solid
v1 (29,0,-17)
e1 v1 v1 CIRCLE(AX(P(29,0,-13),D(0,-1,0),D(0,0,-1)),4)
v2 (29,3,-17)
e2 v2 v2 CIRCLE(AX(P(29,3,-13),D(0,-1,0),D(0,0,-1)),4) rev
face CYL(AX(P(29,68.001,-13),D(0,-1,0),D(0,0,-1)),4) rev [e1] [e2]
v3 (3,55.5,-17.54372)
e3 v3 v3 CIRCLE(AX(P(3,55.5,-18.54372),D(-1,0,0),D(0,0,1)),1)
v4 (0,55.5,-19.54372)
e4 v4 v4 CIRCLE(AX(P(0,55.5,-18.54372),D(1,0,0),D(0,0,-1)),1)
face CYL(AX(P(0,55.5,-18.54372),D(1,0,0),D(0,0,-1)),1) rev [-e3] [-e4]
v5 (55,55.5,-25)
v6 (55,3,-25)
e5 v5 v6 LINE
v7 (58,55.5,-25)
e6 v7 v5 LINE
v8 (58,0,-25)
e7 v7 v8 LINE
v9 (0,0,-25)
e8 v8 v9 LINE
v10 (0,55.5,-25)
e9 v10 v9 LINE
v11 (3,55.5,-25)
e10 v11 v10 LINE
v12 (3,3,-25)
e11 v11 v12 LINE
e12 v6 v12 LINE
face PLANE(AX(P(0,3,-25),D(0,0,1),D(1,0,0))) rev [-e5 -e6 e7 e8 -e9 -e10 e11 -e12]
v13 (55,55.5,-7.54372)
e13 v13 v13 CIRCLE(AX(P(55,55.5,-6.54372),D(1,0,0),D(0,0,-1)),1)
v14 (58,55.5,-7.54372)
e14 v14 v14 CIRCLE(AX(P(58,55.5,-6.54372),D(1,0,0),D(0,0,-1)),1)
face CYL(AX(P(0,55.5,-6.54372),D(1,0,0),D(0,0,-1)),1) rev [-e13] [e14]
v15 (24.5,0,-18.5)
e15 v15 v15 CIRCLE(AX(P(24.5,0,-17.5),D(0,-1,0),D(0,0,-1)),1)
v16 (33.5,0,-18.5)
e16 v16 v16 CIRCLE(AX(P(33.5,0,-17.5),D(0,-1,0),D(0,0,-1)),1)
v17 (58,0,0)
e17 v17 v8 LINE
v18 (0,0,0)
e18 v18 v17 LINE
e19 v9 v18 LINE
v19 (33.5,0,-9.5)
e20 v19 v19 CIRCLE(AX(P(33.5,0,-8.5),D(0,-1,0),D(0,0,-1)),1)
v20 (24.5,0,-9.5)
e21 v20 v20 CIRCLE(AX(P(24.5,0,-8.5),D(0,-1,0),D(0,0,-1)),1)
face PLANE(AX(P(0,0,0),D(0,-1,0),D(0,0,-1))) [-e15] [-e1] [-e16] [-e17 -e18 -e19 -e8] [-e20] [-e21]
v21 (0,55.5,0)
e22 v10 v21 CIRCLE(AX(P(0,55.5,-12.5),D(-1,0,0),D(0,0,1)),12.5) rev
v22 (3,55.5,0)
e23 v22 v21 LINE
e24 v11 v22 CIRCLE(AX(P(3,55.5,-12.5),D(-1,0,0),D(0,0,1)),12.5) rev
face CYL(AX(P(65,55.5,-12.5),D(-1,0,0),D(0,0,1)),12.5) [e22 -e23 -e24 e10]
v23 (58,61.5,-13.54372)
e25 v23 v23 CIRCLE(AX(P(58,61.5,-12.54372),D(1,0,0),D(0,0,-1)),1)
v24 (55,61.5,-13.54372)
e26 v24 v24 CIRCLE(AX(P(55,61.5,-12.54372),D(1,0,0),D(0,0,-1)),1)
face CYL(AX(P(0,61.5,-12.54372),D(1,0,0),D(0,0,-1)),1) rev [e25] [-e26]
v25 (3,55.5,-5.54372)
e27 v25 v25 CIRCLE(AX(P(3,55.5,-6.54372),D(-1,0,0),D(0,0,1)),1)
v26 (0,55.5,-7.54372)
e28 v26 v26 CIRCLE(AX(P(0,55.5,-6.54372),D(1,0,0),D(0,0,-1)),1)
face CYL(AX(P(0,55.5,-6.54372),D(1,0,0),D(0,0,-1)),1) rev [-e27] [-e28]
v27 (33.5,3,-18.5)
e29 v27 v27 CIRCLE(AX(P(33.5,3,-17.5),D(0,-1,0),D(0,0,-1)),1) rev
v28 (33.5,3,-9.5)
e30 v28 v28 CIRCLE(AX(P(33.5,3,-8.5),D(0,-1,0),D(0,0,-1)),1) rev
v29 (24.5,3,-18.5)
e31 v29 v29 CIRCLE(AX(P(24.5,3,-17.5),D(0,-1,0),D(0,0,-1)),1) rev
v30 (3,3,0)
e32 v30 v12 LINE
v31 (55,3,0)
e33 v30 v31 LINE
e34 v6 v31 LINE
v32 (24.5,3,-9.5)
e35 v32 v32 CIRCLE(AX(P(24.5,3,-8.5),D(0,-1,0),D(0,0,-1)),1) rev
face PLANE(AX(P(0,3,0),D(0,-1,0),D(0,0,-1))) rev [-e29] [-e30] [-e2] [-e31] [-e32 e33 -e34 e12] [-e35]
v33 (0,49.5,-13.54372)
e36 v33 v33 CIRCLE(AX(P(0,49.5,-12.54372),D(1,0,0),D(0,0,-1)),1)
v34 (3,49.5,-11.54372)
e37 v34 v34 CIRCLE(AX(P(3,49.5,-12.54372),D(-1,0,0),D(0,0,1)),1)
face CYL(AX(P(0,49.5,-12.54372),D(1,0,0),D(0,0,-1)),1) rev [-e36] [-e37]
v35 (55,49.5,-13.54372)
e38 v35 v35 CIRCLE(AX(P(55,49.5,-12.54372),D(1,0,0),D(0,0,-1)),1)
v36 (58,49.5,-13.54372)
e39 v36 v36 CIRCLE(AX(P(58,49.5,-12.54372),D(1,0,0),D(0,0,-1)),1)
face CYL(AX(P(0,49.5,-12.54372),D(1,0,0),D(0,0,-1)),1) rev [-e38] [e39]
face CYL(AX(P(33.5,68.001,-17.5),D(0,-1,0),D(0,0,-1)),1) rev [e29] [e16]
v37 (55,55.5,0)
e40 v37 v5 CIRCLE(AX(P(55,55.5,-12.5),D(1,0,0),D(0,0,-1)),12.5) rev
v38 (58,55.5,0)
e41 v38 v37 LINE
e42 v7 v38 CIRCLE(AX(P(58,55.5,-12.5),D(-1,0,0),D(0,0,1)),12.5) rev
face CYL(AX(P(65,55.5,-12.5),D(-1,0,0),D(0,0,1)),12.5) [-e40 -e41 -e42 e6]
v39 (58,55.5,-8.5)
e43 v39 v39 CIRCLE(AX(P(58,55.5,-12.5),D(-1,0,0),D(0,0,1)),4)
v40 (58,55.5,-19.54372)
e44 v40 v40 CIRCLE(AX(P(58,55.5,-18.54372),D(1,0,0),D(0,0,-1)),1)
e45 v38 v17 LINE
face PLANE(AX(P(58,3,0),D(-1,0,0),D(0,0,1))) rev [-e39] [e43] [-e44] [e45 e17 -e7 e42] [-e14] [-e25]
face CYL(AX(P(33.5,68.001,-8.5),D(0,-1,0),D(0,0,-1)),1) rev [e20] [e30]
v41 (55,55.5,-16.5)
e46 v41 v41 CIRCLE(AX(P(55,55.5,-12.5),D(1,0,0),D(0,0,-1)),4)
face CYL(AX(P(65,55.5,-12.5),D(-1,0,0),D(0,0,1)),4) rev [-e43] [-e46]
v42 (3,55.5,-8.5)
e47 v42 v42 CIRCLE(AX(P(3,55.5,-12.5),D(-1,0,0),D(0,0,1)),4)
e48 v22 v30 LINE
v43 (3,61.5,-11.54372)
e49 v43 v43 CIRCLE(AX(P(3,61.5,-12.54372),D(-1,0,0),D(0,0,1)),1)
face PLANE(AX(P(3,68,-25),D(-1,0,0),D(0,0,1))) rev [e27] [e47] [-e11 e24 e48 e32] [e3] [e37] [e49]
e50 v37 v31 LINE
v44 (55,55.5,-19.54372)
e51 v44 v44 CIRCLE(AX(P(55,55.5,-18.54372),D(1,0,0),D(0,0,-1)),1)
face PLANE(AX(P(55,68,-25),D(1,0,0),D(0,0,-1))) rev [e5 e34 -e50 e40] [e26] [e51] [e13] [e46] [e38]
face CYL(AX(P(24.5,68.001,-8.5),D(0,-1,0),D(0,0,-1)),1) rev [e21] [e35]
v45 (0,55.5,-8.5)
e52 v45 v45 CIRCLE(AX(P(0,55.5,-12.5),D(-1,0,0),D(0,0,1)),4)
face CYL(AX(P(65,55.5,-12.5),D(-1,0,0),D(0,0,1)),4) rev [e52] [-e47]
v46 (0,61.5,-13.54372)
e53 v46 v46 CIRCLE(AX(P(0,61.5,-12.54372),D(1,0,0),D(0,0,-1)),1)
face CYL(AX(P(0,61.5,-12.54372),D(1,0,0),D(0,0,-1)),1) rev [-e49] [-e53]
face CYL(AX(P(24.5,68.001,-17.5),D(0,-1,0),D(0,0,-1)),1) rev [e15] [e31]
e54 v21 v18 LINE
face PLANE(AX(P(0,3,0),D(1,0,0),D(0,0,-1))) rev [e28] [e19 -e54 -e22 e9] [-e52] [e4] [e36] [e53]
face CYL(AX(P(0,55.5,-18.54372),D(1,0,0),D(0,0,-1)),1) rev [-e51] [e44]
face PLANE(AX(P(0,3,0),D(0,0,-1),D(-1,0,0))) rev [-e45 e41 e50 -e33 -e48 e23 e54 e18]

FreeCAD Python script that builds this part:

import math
import FreeCAD as App
import Part
import Sketcher

V = App.Vector
Q = App.Units.Quantity

doc = App.newDocument("Part")
body = doc.addObject("PartDesign::Body", "Body")

# Sketch on XZ plane
sketch1 = body.newObject("Sketcher::SketchObject", "Sketch")
sketch1.AttachmentSupport = (doc.getObject("XZ_Plane"), [""])
sketch1.MapMode = "FlatFace"
sketch1.addGeometry(Part.LineSegment(V(0, -25, 0), V(0, 0, 0)), False)
sketch1.addGeometry(Part.LineSegment(V(0, 0, 0), V(58, 0, 0)), False)
sketch1.addGeometry(Part.LineSegment(V(58, 0, 0), V(58, -25, 0)), False)
sketch1.addGeometry(Part.LineSegment(V(58, -25, 0), V(0, -25, 0)), False)
sketch1.addConstraint(Sketcher.Constraint("Coincident", 0, 2, 1, 1))
sketch1.addConstraint(Sketcher.Constraint("Coincident", 1, 2, 2, 1))
sketch1.addConstraint(Sketcher.Constraint("Coincident", 2, 2, 3, 1))
sketch1.addConstraint(Sketcher.Constraint("Coincident", 3, 2, 0, 1))
sketch1.addConstraint(Sketcher.Constraint("Vertical", 0))
sketch1.addConstraint(Sketcher.Constraint("Horizontal", 1))
sketch1.addConstraint(Sketcher.Constraint("Vertical", 2))
sketch1.addConstraint(Sketcher.Constraint("Horizontal", 3))
sketch1.addConstraint(Sketcher.Constraint("Coincident", 0, 2, -1, 1))
sketch1.addConstraint(Sketcher.Constraint("DistanceX", 1, 1, 1, 2, Q("58 mm")))
sketch1.addConstraint(Sketcher.Constraint("DistanceY", 0, 1, 0, 2, Q("25 mm")))
pad1 = body.newObject("PartDesign::Pad", "Pad")
pad1.Profile = sketch1
pad1.Length = 3
pad1.Reversed = True

# Sketch on XZ plane
sketch2 = body.newObject("Sketcher::SketchObject", "Sketch001")
sketch2.AttachmentSupport = (doc.getObject("XZ_Plane"), [""])
sketch2.MapMode = "FlatFace"
sketch2.AttachmentOffset = App.Placement(V(0, 0, -3), App.Rotation())
sketch2.addGeometry(Part.LineSegment(V(55, -25, 0), V(55, 0, 0)), False)
sketch2.addGeometry(Part.LineSegment(V(55, 0, 0), V(58, 0, 0)), False)
sketch2.addGeometry(Part.LineSegment(V(58, 0, 0), V(58, -25, 0)), False)
sketch2.addGeometry(Part.LineSegment(V(58, -25, 0), V(55, -25, 0)), False)
sketch2.addGeometry(Part.LineSegment(V(0, -25, 0), V(0, 0, 0)), False)
sketch2.addGeometry(Part.LineSegment(V(0, 0, 0), V(3, 0, 0)), False)
sketch2.addGeometry(Part.LineSegment(V(3, 0, 0), V(3, -25, 0)), False)
sketch2.addGeometry(Part.LineSegment(V(3, -25, 0), V(0, -25, 0)), False)
sketch2.addConstraint(Sketcher.Constraint("Coincident", 0, 2, 1, 1))
sketch2.addConstraint(Sketcher.Constraint("Coincident", 1, 2, 2, 1))
sketch2.addConstraint(Sketcher.Constraint("Coincident", 2, 2, 3, 1))
sketch2.addConstraint(Sketcher.Constraint("Coincident", 3, 2, 0, 1))
sketch2.addConstraint(Sketcher.Constraint("Coincident", 4, 2, 5, 1))
sketch2.addConstraint(Sketcher.Constraint("Coincident", 5, 2, 6, 1))
sketch2.addConstraint(Sketcher.Constraint("Coincident", 6, 2, 7, 1))
sketch2.addConstraint(Sketcher.Constraint("Coincident", 7, 2, 4, 1))
sketch2.addConstraint(Sketcher.Constraint("Vertical", 0))
sketch2.addConstraint(Sketcher.Constraint("Horizontal", 1))
sketch2.addConstraint(Sketcher.Constraint("Vertical", 2))
sketch2.addConstraint(Sketcher.Constraint("Horizontal", 3))
sketch2.addConstraint(Sketcher.Constraint("Vertical", 4))
sketch2.addConstraint(Sketcher.Constraint("Horizontal", 5))
sketch2.addConstraint(Sketcher.Constraint("Vertical", 6))
sketch2.addConstraint(Sketcher.Constraint("Horizontal", 7))
sketch2.addConstraint(Sketcher.Constraint("Coincident", 4, 2, -1, 1))
sketch2.addConstraint(Sketcher.Constraint("PointOnObject", 0, 2, -1))
sketch2.addConstraint(Sketcher.Constraint("Horizontal", 3, 2, 6, 2))
sketch2.addConstraint(Sketcher.Constraint("Equal", 3, 5))
sketch2.addConstraint(Sketcher.Constraint("DistanceX", 1, 1, 1, 2, Q("3 mm")))
sketch2.addConstraint(Sketcher.Constraint("DistanceY", 0, 1, 0, 2, Q("25 mm")))
sketch2.addConstraint(Sketcher.Constraint("DistanceX", -1, 1, 0, 2, Q("55 mm")))
pad2 = body.newObject("PartDesign::Pad", "Pad001")
pad2.Profile = sketch2
pad2.Length = 65
pad2.Reversed = True

# Sketch on YZ plane
sketch3 = body.newObject("Sketcher::SketchObject", "Sketch002")
sketch3.AttachmentSupport = (doc.getObject("YZ_Plane"), [""])
sketch3.MapMode = "FlatFace"
sketch3.addGeometry(Part.LineSegment(V(68, -25, 0), V(56, -25, 0)), False)
sketch3.addGeometry(Part.ArcOfCircle(Part.Circle(V(56, -13, 0), V(0, 0, 1), 12), math.radians(-90), math.radians(0)), False)
sketch3.addGeometry(Part.LineSegment(V(68, -12, 0), V(68, -25, 0)), False)
sketch3.addGeometry(Part.LineSegment(V(68, 0, 0), V(68, -12, 0)), False)
sketch3.addGeometry(Part.ArcOfCircle(Part.Circle(V(56, -12, 0), V(0, 0, 1), 12), math.radians(0), math.radians(90)), False)
sketch3.addGeometry(Part.LineSegment(V(56, 0, 0), V(68, 0, 0)), False)
sketch3.addConstraint(Sketcher.Constraint("Tangent", 0, 2, 1, 1))
sketch3.addConstraint(Sketcher.Constraint("Tangent", 1, 2, 2, 1))
sketch3.addConstraint(Sketcher.Constraint("Coincident", 2, 2, 0, 1))
sketch3.addConstraint(Sketcher.Constraint("Tangent", 3, 2, 4, 1))
sketch3.addConstraint(Sketcher.Constraint("Tangent", 4, 2, 5, 1))
sketch3.addConstraint(Sketcher.Constraint("Coincident", 5, 2, 3, 1))
sketch3.addConstraint(Sketcher.Constraint("Horizontal", 0))
sketch3.addConstraint(Sketcher.Constraint("Vertical", 2))
sketch3.addConstraint(Sketcher.Constraint("Vertical", 3))
sketch3.addConstraint(Sketcher.Constraint("Horizontal", 5))
sketch3.addConstraint(Sketcher.Constraint("Coincident", 4, 3, 1, 3))
sketch3.addConstraint(Sketcher.Constraint("Equal", 1, 4))
sketch3.addConstraint(Sketcher.Constraint("PointOnObject", 4, 2, -1))
sketch3.addConstraint(Sketcher.Constraint("Radius", 1, Q("12.5 mm")))
sketch3.addConstraint(Sketcher.Constraint("DistanceX", -1, 1, 1, 2, Q("68 mm")))
pocket1 = body.newObject("PartDesign::Pocket", "Pocket")
pocket1.Profile = sketch3
pocket1.Length = 65
pocket1.Reversed = True

# Sketch on YZ plane
sketch4 = body.newObject("Sketcher::SketchObject", "Sketch003")
sketch4.AttachmentSupport = (doc.getObject("YZ_Plane"), [""])
sketch4.MapMode = "FlatFace"
sketch4.addGeometry(Part.Circle(V(55.5, -12.5, 0), V(0, 0, 1), 4), False)
sketch4.addConstraint(Sketcher.Constraint("Diameter", 0, Q("8 mm")))
sketch4.addConstraint(Sketcher.Constraint("DistanceX", -1, 1, 0, 3, Q("55.5 mm")))
sketch4.addConstraint(Sketcher.Constraint("DistanceY", 0, 3, -1, 1, Q("12.5 mm")))
pocket2 = body.newObject("PartDesign::Pocket", "Pocket001")
pocket2.Profile = sketch4
pocket2.Length = 65
pocket2.Reversed = True

# Sketch on YZ plane
sketch5 = body.newObject("Sketcher::SketchObject", "Sketch004")
sketch5.AttachmentSupport = (doc.getObject("YZ_Plane"), [""])
sketch5.MapMode = "FlatFace"
sketch5.AttachmentOffset = App.Placement(V(0, 0, 3), App.Rotation())
sketch5.addGeometry(Part.Circle(V(61.5, -12.5, 0), V(0, 0, 1), 1), False)
sketch5.addGeometry(Part.Circle(V(55.5, -18.5, 0), V(0, 0, 1), 1), False)
sketch5.addGeometry(Part.Circle(V(55.5, -6.5, 0), V(0, 0, 1), 1), False)
sketch5.addGeometry(Part.Circle(V(49.5, -12.5, 0), V(0, 0, 1), 1), False)
sketch5.addConstraint(Sketcher.Constraint("Equal", 0, 1))
sketch5.addConstraint(Sketcher.Constraint("Equal", 1, 2))
sketch5.addConstraint(Sketcher.Constraint("Equal", 2, 3))
sketch5.addConstraint(Sketcher.Constraint("Horizontal", 0, 3, 3, 3))
sketch5.addConstraint(Sketcher.Constraint("Vertical", 1, 3, 2, 3))
sketch5.addConstraint(Sketcher.Constraint("Diameter", 0, Q("2 mm")))
sketch5.addConstraint(Sketcher.Constraint("DistanceX", 1, 3, 0, 3, Q("6 mm")))
sketch5.addConstraint(Sketcher.Constraint("DistanceY", 1, 3, 0, 3, Q("6 mm")))
sketch5.addConstraint(Sketcher.Constraint("DistanceY", 0, 3, 2, 3, Q("6 mm")))
sketch5.addConstraint(Sketcher.Constraint("DistanceX", 3, 3, 1, 3, Q("6 mm")))
sketch5.addConstraint(Sketcher.Constraint("DistanceX", -1, 1, 0, 3, Q("61.5 mm")))
sketch5.addConstraint(Sketcher.Constraint("DistanceY", 0, 3, -1, 1, Q("12.54372 mm")))
pocket3 = body.newObject("PartDesign::Pocket", "Pocket002")
pocket3.Profile = sketch5
pocket3.Type = "ThroughAll"
pocket3.Midplane = True

# Sketch on XZ plane
sketch6 = body.newObject("Sketcher::SketchObject", "Sketch005")
sketch6.AttachmentSupport = (doc.getObject("XZ_Plane"), [""])
sketch6.MapMode = "FlatFace"
sketch6.addGeometry(Part.Circle(V(29, -13, 0), V(0, 0, 1), 4), False)
sketch6.addConstraint(Sketcher.Constraint("Diameter", 0, Q("8 mm")))
sketch6.addConstraint(Sketcher.Constraint("DistanceX", -1, 1, 0, 3, Q("29 mm")))
sketch6.addConstraint(Sketcher.Constraint("DistanceY", 0, 3, -1, 1, Q("13 mm")))
pocket4 = body.newObject("PartDesign::Pocket", "Pocket003")
pocket4.Profile = sketch6
pocket4.Type = "UpToFirst"

# Sketch on XZ plane
sketch7 = body.newObject("Sketcher::SketchObject", "Sketch006")
sketch7.AttachmentSupport = (doc.getObject("XZ_Plane"), [""])
sketch7.MapMode = "FlatFace"
sketch7.addGeometry(Part.Circle(V(24.5, -17.5, 0), V(0, 0, 1), 1), False)
sketch7.addConstraint(Sketcher.Constraint("Diameter", 0, Q("2 mm")))
sketch7.addConstraint(Sketcher.Constraint("DistanceX", -1, 1, 0, 3, Q("24.5 mm")))
sketch7.addConstraint(Sketcher.Constraint("DistanceY", 0, 3, -1, 1, Q("17.5 mm")))
pocket5 = body.newObject("PartDesign::Pocket", "Pocket004")
pocket5.Profile = sketch7
pocket5.Type = "UpToFirst"

# Sketch on XZ plane
sketch8 = body.newObject("Sketcher::SketchObject", "Sketch007")
sketch8.AttachmentSupport = (doc.getObject("XZ_Plane"), [""])
sketch8.MapMode = "FlatFace"
sketch8.addGeometry(Part.Circle(V(33.5, -17.5, 0), V(0, 0, 1), 1), False)
sketch8.addConstraint(Sketcher.Constraint("Diameter", 0, Q("2 mm")))
sketch8.addConstraint(Sketcher.Constraint("DistanceX", -1, 1, 0, 3, Q("33.5 mm")))
sketch8.addConstraint(Sketcher.Constraint("DistanceY", 0, 3, -1, 1, Q("17.5 mm")))
pocket6 = body.newObject("PartDesign::Pocket", "Pocket005")
pocket6.Profile = sketch8
pocket6.Type = "UpToFirst"

# Sketch on XZ plane
sketch9 = body.newObject("Sketcher::SketchObject", "Sketch008")
sketch9.AttachmentSupport = (doc.getObject("XZ_Plane"), [""])
sketch9.MapMode = "FlatFace"
sketch9.addGeometry(Part.Circle(V(33.5, -8.5, 0), V(0, 0, 1), 1), False)
sketch9.addConstraint(Sketcher.Constraint("Diameter", 0, Q("2 mm")))
sketch9.addConstraint(Sketcher.Constraint("DistanceX", -1, 1, 0, 3, Q("33.5 mm")))
sketch9.addConstraint(Sketcher.Constraint("DistanceY", 0, 3, -1, 1, Q("8.5 mm")))
pocket7 = body.newObject("PartDesign::Pocket", "Pocket006")
pocket7.Profile = sketch9
pocket7.Type = "UpToFirst"

# Sketch on XZ plane
sketch10 = body.newObject("Sketcher::SketchObject", "Sketch009")
sketch10.AttachmentSupport = (doc.getObject("XZ_Plane"), [""])
sketch10.MapMode = "FlatFace"
sketch10.addGeometry(Part.Circle(V(24.5, -8.5, 0), V(0, 0, 1), 1), False)
sketch10.addConstraint(Sketcher.Constraint("Diameter", 0, Q("2 mm")))
sketch10.addConstraint(Sketcher.Constraint("DistanceX", -1, 1, 0, 3, Q("24.5 mm")))
sketch10.addConstraint(Sketcher.Constraint("DistanceY", 0, 3, -1, 1, Q("8.5 mm")))
pocket8 = body.newObject("PartDesign::Pocket", "Pocket007")
pocket8.Profile = sketch10
pocket8.Type = "UpToFirst"

doc.recompute()
